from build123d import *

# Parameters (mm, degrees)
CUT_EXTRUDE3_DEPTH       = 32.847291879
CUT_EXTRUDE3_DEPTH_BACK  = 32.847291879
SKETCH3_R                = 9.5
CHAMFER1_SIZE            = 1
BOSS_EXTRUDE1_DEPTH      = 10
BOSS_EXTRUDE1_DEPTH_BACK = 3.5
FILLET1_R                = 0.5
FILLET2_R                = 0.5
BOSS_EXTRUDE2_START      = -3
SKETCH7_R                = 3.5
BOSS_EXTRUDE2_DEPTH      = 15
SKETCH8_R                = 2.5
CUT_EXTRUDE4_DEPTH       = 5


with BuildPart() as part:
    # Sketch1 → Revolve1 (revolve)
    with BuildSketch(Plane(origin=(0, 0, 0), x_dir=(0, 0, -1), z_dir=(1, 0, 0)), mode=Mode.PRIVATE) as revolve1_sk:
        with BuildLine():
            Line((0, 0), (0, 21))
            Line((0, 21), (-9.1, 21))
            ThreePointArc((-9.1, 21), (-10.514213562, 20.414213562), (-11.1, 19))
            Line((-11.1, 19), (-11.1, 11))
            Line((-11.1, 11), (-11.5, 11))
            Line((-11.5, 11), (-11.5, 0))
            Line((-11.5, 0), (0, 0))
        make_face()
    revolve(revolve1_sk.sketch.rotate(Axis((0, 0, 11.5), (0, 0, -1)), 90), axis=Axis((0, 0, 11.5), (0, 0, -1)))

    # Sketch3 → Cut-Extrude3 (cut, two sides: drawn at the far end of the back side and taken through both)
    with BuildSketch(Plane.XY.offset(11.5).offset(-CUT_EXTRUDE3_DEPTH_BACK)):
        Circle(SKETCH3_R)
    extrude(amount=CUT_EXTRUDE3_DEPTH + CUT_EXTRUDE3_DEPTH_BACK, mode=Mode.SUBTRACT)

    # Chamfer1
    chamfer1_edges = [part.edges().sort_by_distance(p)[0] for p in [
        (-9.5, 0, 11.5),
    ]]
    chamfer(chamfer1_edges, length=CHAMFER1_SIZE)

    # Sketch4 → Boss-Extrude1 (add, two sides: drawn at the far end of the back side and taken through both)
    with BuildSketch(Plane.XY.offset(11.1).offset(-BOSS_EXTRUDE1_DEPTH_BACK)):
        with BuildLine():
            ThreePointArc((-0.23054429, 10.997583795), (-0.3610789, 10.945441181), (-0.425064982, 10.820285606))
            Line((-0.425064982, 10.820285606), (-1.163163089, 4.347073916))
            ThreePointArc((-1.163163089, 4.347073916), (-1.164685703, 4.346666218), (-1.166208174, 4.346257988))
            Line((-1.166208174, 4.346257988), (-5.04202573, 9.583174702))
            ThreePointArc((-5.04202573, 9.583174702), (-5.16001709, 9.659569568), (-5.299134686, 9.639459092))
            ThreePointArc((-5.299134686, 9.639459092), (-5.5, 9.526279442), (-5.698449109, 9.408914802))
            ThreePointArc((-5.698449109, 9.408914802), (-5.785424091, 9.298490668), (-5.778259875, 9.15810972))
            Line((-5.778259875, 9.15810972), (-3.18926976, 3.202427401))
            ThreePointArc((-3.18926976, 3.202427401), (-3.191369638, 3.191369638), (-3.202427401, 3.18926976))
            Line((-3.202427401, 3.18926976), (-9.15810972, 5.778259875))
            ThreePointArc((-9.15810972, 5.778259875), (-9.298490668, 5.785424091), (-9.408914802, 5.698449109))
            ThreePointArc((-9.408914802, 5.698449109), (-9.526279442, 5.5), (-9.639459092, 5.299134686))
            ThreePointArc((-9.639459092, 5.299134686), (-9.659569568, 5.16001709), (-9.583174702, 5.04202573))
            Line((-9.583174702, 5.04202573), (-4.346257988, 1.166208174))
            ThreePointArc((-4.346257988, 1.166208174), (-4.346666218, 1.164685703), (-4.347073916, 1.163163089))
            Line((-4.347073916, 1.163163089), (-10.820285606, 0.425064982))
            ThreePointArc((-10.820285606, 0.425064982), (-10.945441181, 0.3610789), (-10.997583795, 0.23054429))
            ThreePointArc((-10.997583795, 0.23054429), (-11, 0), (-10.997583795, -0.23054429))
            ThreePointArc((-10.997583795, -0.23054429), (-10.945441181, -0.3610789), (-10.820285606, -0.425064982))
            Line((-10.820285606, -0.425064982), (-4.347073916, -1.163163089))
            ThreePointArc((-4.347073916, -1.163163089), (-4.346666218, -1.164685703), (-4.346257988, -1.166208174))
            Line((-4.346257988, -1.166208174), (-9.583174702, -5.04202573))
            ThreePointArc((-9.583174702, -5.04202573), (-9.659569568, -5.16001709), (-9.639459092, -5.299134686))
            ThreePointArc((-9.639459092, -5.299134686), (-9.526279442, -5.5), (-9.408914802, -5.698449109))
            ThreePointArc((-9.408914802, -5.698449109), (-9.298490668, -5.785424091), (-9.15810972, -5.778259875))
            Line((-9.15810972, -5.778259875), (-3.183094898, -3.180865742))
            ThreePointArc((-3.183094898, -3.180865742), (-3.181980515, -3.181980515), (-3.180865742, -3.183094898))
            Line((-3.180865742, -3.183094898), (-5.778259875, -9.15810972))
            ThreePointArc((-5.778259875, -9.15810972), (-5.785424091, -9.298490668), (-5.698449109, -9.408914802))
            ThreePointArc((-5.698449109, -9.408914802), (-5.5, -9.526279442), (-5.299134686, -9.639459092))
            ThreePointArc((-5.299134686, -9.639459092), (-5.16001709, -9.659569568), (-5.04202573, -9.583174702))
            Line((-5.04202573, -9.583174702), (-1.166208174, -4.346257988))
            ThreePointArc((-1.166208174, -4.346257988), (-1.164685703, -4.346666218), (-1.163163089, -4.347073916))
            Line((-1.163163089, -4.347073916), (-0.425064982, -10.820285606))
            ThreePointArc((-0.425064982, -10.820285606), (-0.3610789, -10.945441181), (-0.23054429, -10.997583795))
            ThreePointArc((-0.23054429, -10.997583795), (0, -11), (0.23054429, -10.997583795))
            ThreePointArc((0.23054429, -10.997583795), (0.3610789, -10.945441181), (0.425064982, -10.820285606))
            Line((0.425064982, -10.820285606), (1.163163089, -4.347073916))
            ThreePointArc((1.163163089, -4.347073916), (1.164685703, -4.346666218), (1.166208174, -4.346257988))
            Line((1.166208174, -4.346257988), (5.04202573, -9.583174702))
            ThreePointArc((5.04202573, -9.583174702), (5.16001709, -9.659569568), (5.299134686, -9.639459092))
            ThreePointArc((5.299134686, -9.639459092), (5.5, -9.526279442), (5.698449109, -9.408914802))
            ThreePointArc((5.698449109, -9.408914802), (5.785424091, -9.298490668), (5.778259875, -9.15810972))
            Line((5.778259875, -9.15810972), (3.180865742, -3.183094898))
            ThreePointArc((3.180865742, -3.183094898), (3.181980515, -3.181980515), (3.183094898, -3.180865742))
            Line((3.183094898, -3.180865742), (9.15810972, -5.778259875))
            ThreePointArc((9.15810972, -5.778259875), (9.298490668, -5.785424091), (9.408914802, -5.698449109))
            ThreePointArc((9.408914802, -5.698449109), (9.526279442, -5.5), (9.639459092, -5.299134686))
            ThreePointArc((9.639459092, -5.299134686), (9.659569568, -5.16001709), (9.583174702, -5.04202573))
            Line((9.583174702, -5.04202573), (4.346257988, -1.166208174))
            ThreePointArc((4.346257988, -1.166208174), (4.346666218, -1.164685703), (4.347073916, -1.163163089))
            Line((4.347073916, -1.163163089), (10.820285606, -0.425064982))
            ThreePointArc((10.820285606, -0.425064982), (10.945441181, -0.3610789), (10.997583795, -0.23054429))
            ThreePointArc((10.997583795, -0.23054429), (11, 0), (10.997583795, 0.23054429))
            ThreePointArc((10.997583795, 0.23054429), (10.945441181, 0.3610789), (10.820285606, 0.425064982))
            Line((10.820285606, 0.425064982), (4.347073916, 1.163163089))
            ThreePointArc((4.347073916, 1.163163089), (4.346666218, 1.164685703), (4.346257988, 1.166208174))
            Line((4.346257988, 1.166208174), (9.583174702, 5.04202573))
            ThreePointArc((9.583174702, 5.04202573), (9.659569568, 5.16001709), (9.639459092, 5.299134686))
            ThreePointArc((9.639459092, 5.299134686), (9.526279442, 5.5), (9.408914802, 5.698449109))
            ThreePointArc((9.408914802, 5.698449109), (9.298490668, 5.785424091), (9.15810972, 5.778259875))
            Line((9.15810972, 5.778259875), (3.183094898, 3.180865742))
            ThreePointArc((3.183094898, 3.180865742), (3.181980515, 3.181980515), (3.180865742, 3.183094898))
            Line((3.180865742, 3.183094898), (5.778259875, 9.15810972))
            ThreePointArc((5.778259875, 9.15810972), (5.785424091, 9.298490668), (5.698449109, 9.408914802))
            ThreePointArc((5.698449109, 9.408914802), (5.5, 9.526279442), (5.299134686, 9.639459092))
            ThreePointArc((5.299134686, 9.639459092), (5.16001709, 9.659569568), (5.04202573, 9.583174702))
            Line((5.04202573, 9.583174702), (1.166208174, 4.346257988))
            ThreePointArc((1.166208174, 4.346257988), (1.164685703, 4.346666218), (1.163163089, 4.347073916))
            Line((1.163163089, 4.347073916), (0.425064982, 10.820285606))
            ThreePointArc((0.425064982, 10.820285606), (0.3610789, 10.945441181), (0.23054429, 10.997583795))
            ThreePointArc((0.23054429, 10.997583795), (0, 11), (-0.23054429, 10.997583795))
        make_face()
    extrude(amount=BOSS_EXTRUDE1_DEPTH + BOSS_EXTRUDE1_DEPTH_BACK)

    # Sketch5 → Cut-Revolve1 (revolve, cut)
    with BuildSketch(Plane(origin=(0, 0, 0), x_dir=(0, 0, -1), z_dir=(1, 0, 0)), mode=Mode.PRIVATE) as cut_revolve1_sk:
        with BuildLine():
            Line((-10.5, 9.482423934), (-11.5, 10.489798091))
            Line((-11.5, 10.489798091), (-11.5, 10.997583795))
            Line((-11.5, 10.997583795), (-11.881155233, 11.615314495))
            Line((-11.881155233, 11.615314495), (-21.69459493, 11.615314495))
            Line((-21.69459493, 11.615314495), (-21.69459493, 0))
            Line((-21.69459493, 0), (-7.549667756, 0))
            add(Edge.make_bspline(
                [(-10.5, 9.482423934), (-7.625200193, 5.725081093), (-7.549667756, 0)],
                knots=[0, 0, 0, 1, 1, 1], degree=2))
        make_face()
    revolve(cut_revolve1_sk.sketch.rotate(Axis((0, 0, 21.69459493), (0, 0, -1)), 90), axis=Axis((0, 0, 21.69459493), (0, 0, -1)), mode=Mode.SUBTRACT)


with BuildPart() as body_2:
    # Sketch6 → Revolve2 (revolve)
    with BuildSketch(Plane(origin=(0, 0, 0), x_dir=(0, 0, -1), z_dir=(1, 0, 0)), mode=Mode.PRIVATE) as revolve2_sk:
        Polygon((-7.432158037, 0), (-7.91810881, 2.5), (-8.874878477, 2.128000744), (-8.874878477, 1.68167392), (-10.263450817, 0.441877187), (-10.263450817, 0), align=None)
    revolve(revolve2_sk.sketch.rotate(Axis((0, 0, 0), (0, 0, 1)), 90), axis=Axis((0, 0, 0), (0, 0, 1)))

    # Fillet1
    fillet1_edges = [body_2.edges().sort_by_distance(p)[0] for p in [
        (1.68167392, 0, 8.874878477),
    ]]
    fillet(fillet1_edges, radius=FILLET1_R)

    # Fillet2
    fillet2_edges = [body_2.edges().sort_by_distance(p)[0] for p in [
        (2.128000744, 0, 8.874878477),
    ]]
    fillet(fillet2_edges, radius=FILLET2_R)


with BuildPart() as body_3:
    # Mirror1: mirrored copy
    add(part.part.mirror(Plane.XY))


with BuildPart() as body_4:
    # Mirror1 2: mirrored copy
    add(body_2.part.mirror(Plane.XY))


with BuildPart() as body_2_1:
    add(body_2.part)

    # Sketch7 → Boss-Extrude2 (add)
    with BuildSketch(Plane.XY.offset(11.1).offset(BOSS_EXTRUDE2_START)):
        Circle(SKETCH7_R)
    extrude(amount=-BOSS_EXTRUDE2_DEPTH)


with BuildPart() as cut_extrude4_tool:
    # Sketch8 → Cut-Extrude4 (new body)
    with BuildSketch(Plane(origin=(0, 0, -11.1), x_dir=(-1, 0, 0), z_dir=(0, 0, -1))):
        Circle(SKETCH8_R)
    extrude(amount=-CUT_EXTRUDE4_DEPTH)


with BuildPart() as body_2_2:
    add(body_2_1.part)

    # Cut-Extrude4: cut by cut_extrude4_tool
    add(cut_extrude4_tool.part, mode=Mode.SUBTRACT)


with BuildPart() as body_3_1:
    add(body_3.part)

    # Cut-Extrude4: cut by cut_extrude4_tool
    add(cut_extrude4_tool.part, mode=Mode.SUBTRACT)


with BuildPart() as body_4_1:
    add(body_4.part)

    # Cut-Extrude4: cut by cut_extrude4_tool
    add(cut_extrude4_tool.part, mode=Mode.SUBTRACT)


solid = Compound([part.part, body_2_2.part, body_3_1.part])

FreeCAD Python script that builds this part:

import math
import FreeCAD as App
import Part
import Sketcher
Q = App.Units.Quantity


def edges_at(feature, points):
    """Names of the edges that pass closest to the given points."""
    edges = feature.Shape.Edges
    near = lambda p: min(range(len(edges)), key=lambda i: edges[i].distToShape(Part.Vertex(*p))[0])
    return sorted({f"Edge{near(p) + 1}" for p in points})


def add_polygon(sketch, points):
    """Adds a closed chain of lines whose ends are joined by coincident constraints."""
    first, n = sketch.GeometryCount, len(points)
    for a, b in zip(points, points[1:] + points[:1]):
        sketch.addGeometry(Part.LineSegment(App.Vector(*a, 0), App.Vector(*b, 0)), False)
    for i in range(n):
        sketch.addConstraint(Sketcher.Constraint("Coincident", first + i, 2, first + (i + 1) % n, 1))

doc = App.newDocument("Part")
body = doc.addObject("PartDesign::Body", "Body")

sketch1 = body.newObject("Sketcher::SketchObject", "Sketch")
sketch1.AttachmentSupport = (doc.getObject("YZ_Plane"), [""])
sketch1.MapMode = "FlatFace"
sketch1.addGeometry([
    Part.LineSegment(App.Vector(0, 0, 0), App.Vector(21, 0, 0)),
    Part.LineSegment(App.Vector(21, 0, 0), App.Vector(21, 9.1, 0)),
    Part.ArcOfCircle(Part.Circle(App.Vector(19, 9.1, 0), App.Vector(0, 0, 1), 2), math.radians(0), math.radians(90)),
    Part.LineSegment(App.Vector(19, 11.1, 0), App.Vector(11, 11.1, 0)),
    Part.LineSegment(App.Vector(11, 11.1, 0), App.Vector(11, 11.5, 0)),
    Part.LineSegment(App.Vector(11, 11.5, 0), App.Vector(0, 11.5, 0)),
    Part.LineSegment(App.Vector(0, 11.5, 0), App.Vector(0, 0, 0)),
], False)
sketch1.addConstraint([
    Sketcher.Constraint("Coincident", 0, 2, 1, 1),
    Sketcher.Constraint("Tangent", 1, 2, 2, 1),
    Sketcher.Constraint("Tangent", 2, 2, 3, 1),
    Sketcher.Constraint("Coincident", 3, 2, 4, 1),
    Sketcher.Constraint("Coincident", 4, 2, 5, 1),
    Sketcher.Constraint("Coincident", 5, 2, 6, 1),
    Sketcher.Constraint("Coincident", 6, 2, 0, 1),
    Sketcher.Constraint("Horizontal", 0),
    Sketcher.Constraint("Vertical", 1),
    Sketcher.Constraint("Horizontal", 3),
    Sketcher.Constraint("Vertical", 4),
    Sketcher.Constraint("Horizontal", 5),
    Sketcher.Constraint("Vertical", 6),
    Sketcher.Constraint("Coincident", 6, 2, -1, 1),
    Sketcher.Constraint("Radius", 2, Q("2 mm")),
    Sketcher.Constraint("DistanceX", 0, 1, 0, 2, Q("21 mm")),
    Sketcher.Constraint("DistanceX", 3, 2, 3, 1, Q("8 mm")),
    Sketcher.Constraint("DistanceY", 1, 1, 1, 2, Q("9.1 mm")),
    Sketcher.Constraint("DistanceY", 4, 1, 4, 2, Q("0.4 mm")),
])
revolution = body.newObject("PartDesign::Revolution", "Revolution")
revolution.Profile = sketch1
revolution.ReferenceAxis = (sketch1, ["V_Axis"])
revolution.Angle = 360

sketch2 = body.newObject("Sketcher::SketchObject", "Sketch001")
sketch2.AttachmentSupport = (doc.getObject("XY_Plane"), [""])
sketch2.MapMode = "FlatFace"
sketch2.AttachmentOffset = App.Placement(App.Vector(0, 0, 11.5), App.Rotation())
sketch2.addGeometry(Part.Circle(App.Vector(0, 0, 0), App.Vector(0, 0, 1), 9.5), False)
sketch2.addConstraint([
    Sketcher.Constraint("Coincident", 0, 3, -1, 1),
    Sketcher.Constraint("Diameter", 0, Q("19 mm")),
])
pocket1 = body.newObject("PartDesign::Pocket", "Pocket")
pocket1.Profile = sketch2
pocket1.Type = "ThroughAll"
pocket1.Midplane = True
doc.recompute()

chamfer = body.newObject("PartDesign::Chamfer", "Chamfer")
chamfer.Base = (pocket1, edges_at(pocket1, [(-9.5, 0, 11.5)]))
chamfer.Size = 1

sketch3 = body.newObject("Sketcher::SketchObject", "Sketch002")
sketch3.AttachmentSupport = (doc.getObject("XY_Plane"), [""])
sketch3.MapMode = "FlatFace"
sketch3.AttachmentOffset = App.Placement(App.Vector(0, 0, 11.1), App.Rotation())
sketch3.addGeometry([
    Part.ArcOfCircle(Part.Circle(App.Vector(-0.226353, 10.797628, 0), App.Vector(0, 0, 1), 0.2), math.radians(91.200926), math.radians(173.49503)),
    Part.LineSegment(App.Vector(-0.425065, 10.820286, 0), App.Vector(-1.163163, 4.347074, 0)),
    Part.ArcOfCircle(Part.Circle(App.Vector(0.002628, -0.009808, 0), App.Vector(0, 0, 1), 4.510154), math.radians(104.979975), math.radians(105.020023)),
    Part.LineSegment(App.Vector(-1.166208, 4.346258, 0), App.Vector(-5.042026, 9.583175, 0)),
    Part.ArcOfCircle(Part.Circle(App.Vector(-5.202787, 9.464196, 0), App.Vector(0, 0, 1), 0.2), math.radians(36.504971), math.radians(118.799074)),
    Part.ArcOfCircle(Part.Circle(App.Vector(0, 0.000001, 0), App.Vector(0, 0, 1), 10.999999), math.radians(118.799074), math.radians(121.200926)),
    Part.ArcOfCircle(Part.Circle(App.Vector(-5.594841, 9.237844, 0), App.Vector(0, 0, 1), 0.2), math.radians(121.200925), math.radians(203.495031)),
    Part.LineSegment(App.Vector(-5.77826, 9.15811, 0), App.Vector(-3.18927, 3.202427, 0)),
    Part.ArcOfCircle(Part.Circle(App.Vector(-3.198441, 3.198441, 0), App.Vector(0, 0, 1), 0.01), math.radians(-113.495038), math.radians(23.495038)),
    Part.LineSegment(App.Vector(-3.202427, 3.18927, 0), App.Vector(-9.15811, 5.77826, 0)),
    Part.ArcOfCircle(Part.Circle(App.Vector(-9.237844, 5.594841, 0), App.Vector(0, 0, 1), 0.2), math.radians(66.504969), math.radians(148.799075)),
    Part.ArcOfCircle(Part.Circle(App.Vector(-0.000001, 0, 0), App.Vector(0, 0, 1), 10.999999), math.radians(148.799074), math.radians(151.200926)),
    Part.ArcOfCircle(Part.Circle(App.Vector(-9.464196, 5.202787, 0), App.Vector(0, 0, 1), 0.2), math.radians(151.200926), math.radians(233.495029)),
    Part.LineSegment(App.Vector(-9.583175, 5.042026, 0), App.Vector(-4.346258, 1.166208, 0)),
    Part.ArcOfCircle(Part.Circle(App.Vector(0.009808, -0.002628, 0), App.Vector(0, 0, 1), 4.510154), math.radians(164.979977), math.radians(165.020025)),
    Part.LineSegment(App.Vector(-4.347074, 1.163163, 0), App.Vector(-10.820286, 0.425065, 0)),
    Part.ArcOfCircle(Part.Circle(App.Vector(-10.797628, 0.226353, 0), App.Vector(0, 0, 1), 0.2), math.radians(96.50497), math.radians(178.799074)),
    Part.ArcOfCircle(Part.Circle(App.Vector(0, 0, 0), App.Vector(0, 0, 1), 11), math.radians(178.799074), math.radians(181.200926)),
    Part.ArcOfCircle(Part.Circle(App.Vector(-10.797628, -0.226353, 0), App.Vector(0, 0, 1), 0.2), math.radians(-178.799074), math.radians(-96.50497)),
    Part.LineSegment(App.Vector(-10.820286, -0.425065, 0), App.Vector(-4.347074, -1.163163, 0)),
    Part.ArcOfCircle(Part.Circle(App.Vector(0.009808, 0.002628, 0), App.Vector(0, 0, 1), 4.510154), math.radians(-165.020025), math.radians(-164.979977)),
    Part.LineSegment(App.Vector(-4.346258, -1.166208, 0), App.Vector(-9.583175, -5.042026, 0)),
    Part.ArcOfCircle(Part.Circle(App.Vector(-9.464196, -5.202787, 0), App.Vector(0, 0, 1), 0.2), math.radians(126.504971), math.radians(208.799074)),
    Part.ArcOfCircle(Part.Circle(App.Vector(-0.000001, 0, 0), App.Vector(0, 0, 1), 10.999999), math.radians(-151.200926), math.radians(-148.799074)),
    Part.ArcOfCircle(Part.Circle(App.Vector(-9.237844, -5.594841, 0), App.Vector(0, 0, 1), 0.2), math.radians(-148.799075), math.radians(-66.504969)),
    Part.LineSegment(App.Vector(-9.15811, -5.77826, 0), App.Vector(-3.183095, -3.180866, 0)),
    Part.ArcOfCircle(Part.Circle(App.Vector(0.003363, 0.003363, 0), App.Vector(0, 0, 1), 4.504757), math.radians(-135.020048), math.radians(-134.979952)),
    Part.LineSegment(App.Vector(-3.180866, -3.183095, 0), App.Vector(-5.77826, -9.15811, 0)),
    Part.ArcOfCircle(Part.Circle(App.Vector(-5.594841, -9.237844, 0), App.Vector(0, 0, 1), 0.2), math.radians(156.504969), math.radians(238.799075)),
    Part.ArcOfCircle(Part.Circle(App.Vector(0, -0.000001, 0), App.Vector(0, 0, 1), 10.999999), math.radians(-121.200926), math.radians(-118.799074)),
    Part.ArcOfCircle(Part.Circle(App.Vector(-5.202787, -9.464196, 0), App.Vector(0, 0, 1), 0.2), math.radians(-118.799074), math.radians(-36.504971)),
    Part.LineSegment(App.Vector(-5.042026, -9.583175, 0), App.Vector(-1.166208, -4.346258, 0)),
    Part.ArcOfCircle(Part.Circle(App.Vector(0.002628, 0.009808, 0), App.Vector(0, 0, 1), 4.510154), math.radians(-105.020023), math.radians(-104.979975)),
    Part.LineSegment(App.Vector(-1.163163, -4.347074, 0), App.Vector(-0.425065, -10.820286, 0)),
    Part.ArcOfCircle(Part.Circle(App.Vector(-0.226353, -10.797628, 0), App.Vector(0, 0, 1), 0.2), math.radians(-173.49503), math.radians(-91.200926)),
    Part.ArcOfCircle(Part.Circle(App.Vector(0, 0, 0), App.Vector(0, 0, 1), 11), math.radians(-91.200926), math.radians(-88.799074)),
    Part.ArcOfCircle(Part.Circle(App.Vector(0.226353, -10.797628, 0), App.Vector(0, 0, 1), 0.2), math.radians(-88.799074), math.radians(-6.50497)),
    Part.LineSegment(App.Vector(0.425065, -10.820286, 0), App.Vector(1.163163, -4.347074, 0)),
    Part.ArcOfCircle(Part.Circle(App.Vector(-0.002628, 0.009808, 0), App.Vector(0, 0, 1), 4.510154), math.radians(-75.020025), math.radians(-74.979977)),
    Part.LineSegment(App.Vector(1.166208, -4.346258, 0), App.Vector(5.042026, -9.583175, 0)),
    Part.ArcOfCircle(Part.Circle(App.Vector(5.202787, -9.464196, 0), App.Vector(0, 0, 1), 0.2), math.radians(-143.495029), math.radians(-61.200926)),
    Part.ArcOfCircle(Part.Circle(App.Vector(0, -0.000001, 0), App.Vector(0, 0, 1), 10.999999), math.radians(-61.200926), math.radians(-58.799074)),
    Part.ArcOfCircle(Part.Circle(App.Vector(5.594841, -9.237844, 0), App.Vector(0, 0, 1), 0.2), math.radians(-58.799075), math.radians(23.495031)),
    Part.LineSegment(App.Vector(5.77826, -9.15811, 0), App.Vector(3.180866, -3.183095, 0)),
    Part.ArcOfCircle(Part.Circle(App.Vector(-0.003363, 0.003363, 0), App.Vector(0, 0, 1), 4.504757), math.radians(-45.020048), math.radians(-44.979952)),
    Part.LineSegment(App.Vector(3.183095, -3.180866, 0), App.Vector(9.15811, -5.77826, 0)),
    Part.ArcOfCircle(Part.Circle(App.Vector(9.237844, -5.594841, 0), App.Vector(0, 0, 1), 0.2), math.radians(-113.495031), math.radians(-31.200925)),
    Part.ArcOfCircle(Part.Circle(App.Vector(0.000001, 0, 0), App.Vector(0, 0, 1), 10.999999), math.radians(-31.200926), math.radians(-28.799074)),
    Part.ArcOfCircle(Part.Circle(App.Vector(9.464196, -5.202787, 0), App.Vector(0, 0, 1), 0.2), math.radians(-28.799074), math.radians(53.495029)),
    Part.LineSegment(App.Vector(9.583175, -5.042026, 0), App.Vector(4.346258, -1.166208, 0)),
    Part.ArcOfCircle(Part.Circle(App.Vector(-0.009808, 0.002628, 0), App.Vector(0, 0, 1), 4.510154), math.radians(-15.020023), math.radians(-14.979975)),
    Part.LineSegment(App.Vector(4.347074, -1.163163, 0), App.Vector(10.820286, -0.425065, 0)),
    Part.ArcOfCircle(Part.Circle(App.Vector(10.797628, -0.226353, 0), App.Vector(0, 0, 1), 0.2), math.radians(-83.49503), math.radians(-1.200926)),
    Part.ArcOfCircle(Part.Circle(App.Vector(0, 0, 0), App.Vector(0, 0, 1), 11), math.radians(-1.200926), math.radians(1.200926)),
    Part.ArcOfCircle(Part.Circle(App.Vector(10.797628, 0.226353, 0), App.Vector(0, 0, 1), 0.2), math.radians(1.200926), math.radians(83.49503)),
    Part.LineSegment(App.Vector(10.820286, 0.425065, 0), App.Vector(4.347074, 1.163163, 0)),
    Part.ArcOfCircle(Part.Circle(App.Vector(-0.009808, -0.002628, 0), App.Vector(0, 0, 1), 4.510154), math.radians(14.979975), math.radians(15.020023)),
    Part.LineSegment(App.Vector(4.346258, 1.166208, 0), App.Vector(9.583175, 5.042026, 0)),
    Part.ArcOfCircle(Part.Circle(App.Vector(9.464196, 5.202787, 0), App.Vector(0, 0, 1), 0.2), math.radians(-53.495029), math.radians(28.799074)),
    Part.ArcOfCircle(Part.Circle(App.Vector(0.000001, 0, 0), App.Vector(0, 0, 1), 10.999999), math.radians(28.799074), math.radians(31.200926)),
    Part.ArcOfCircle(Part.Circle(App.Vector(9.237844, 5.594841, 0), App.Vector(0, 0, 1), 0.2), math.radians(31.200925), math.radians(113.495031)),
    Part.LineSegment(App.Vector(9.15811, 5.77826, 0), App.Vector(3.183095, 3.180866, 0)),
    Part.ArcOfCircle(Part.Circle(App.Vector(-0.003363, -0.003363, 0), App.Vector(0, 0, 1), 4.504757), math.radians(44.979952), math.radians(45.020048)),
    Part.LineSegment(App.Vector(3.180866, 3.183095, 0), App.Vector(5.77826, 9.15811, 0)),
    Part.ArcOfCircle(Part.Circle(App.Vector(5.594841, 9.237844, 0), App.Vector(0, 0, 1), 0.2), math.radians(-23.495031), math.radians(58.799075)),
    Part.ArcOfCircle(Part.Circle(App.Vector(0, 0.000001, 0), App.Vector(0, 0, 1), 10.999999), math.radians(58.799074), math.radians(61.200926)),
    Part.ArcOfCircle(Part.Circle(App.Vector(5.202787, 9.464196, 0), App.Vector(0, 0, 1), 0.2), math.radians(61.200926), math.radians(143.495029)),
    Part.LineSegment(App.Vector(5.042026, 9.583175, 0), App.Vector(1.166208, 4.346258, 0)),
    Part.ArcOfCircle(Part.Circle(App.Vector(-0.002628, -0.009808, 0), App.Vector(0, 0, 1), 4.510154), math.radians(74.979977), math.radians(75.020025)),
    Part.LineSegment(App.Vector(1.163163, 4.347074, 0), App.Vector(0.425065, 10.820286, 0)),
    Part.ArcOfCircle(Part.Circle(App.Vector(0.226353, 10.797628, 0), App.Vector(0, 0, 1), 0.2), math.radians(6.50497), math.radians(88.799074)),
    Part.ArcOfCircle(Part.Circle(App.Vector(0, 0, 0), App.Vector(0, 0, 1), 11), math.radians(88.799074), math.radians(91.200926)),
], False)
sketch3.addConstraint([
    Sketcher.Constraint("Tangent", 0, 2, 1, 1),
    Sketcher.Constraint("Coincident", 1, 2, 2, 1),
    Sketcher.Constraint("Coincident", 2, 2, 3, 1),
    Sketcher.Constraint("Tangent", 3, 2, 4, 1),
    Sketcher.Constraint("Tangent", 4, 2, 5, 1),
    Sketcher.Constraint("Tangent", 5, 2, 6, 1),
    Sketcher.Constraint("Tangent", 6, 2, 7, 1),
    Sketcher.Constraint("Tangent", 7, 2, 8, 2),
    Sketcher.Constraint("Tangent", 8, 1, 9, 1),
    Sketcher.Constraint("Tangent", 9, 2, 10, 1),
    Sketcher.Constraint("Tangent", 10, 2, 11, 1),
    Sketcher.Constraint("Tangent", 11, 2, 12, 1),
    Sketcher.Constraint("Tangent", 12, 2, 13, 1),
    Sketcher.Constraint("Coincident", 13, 2, 14, 1),
    Sketcher.Constraint("Coincident", 14, 2, 15, 1),
    Sketcher.Constraint("Tangent", 15, 2, 16, 1),
    Sketcher.Constraint("Tangent", 16, 2, 17, 1),
    Sketcher.Constraint("Tangent", 17, 2, 18, 1),
    Sketcher.Constraint("Tangent", 18, 2, 19, 1),
    Sketcher.Constraint("Coincident", 19, 2, 20, 1),
    Sketcher.Constraint("Coincident", 20, 2, 21, 1),
    Sketcher.Constraint("Tangent", 21, 2, 22, 1),
    Sketcher.Constraint("Tangent", 22, 2, 23, 1),
    Sketcher.Constraint("Tangent", 23, 2, 24, 1),
    Sketcher.Constraint("Tangent", 24, 2, 25, 1),
    Sketcher.Constraint("Coincident", 25, 2, 26, 1),
    Sketcher.Constraint("Coincident", 26, 2, 27, 1),
    Sketcher.Constraint("Tangent", 27, 2, 28, 1),
    Sketcher.Constraint("Tangent", 28, 2, 29, 1),
    Sketcher.Constraint("Tangent", 29, 2, 30, 1),
    Sketcher.Constraint("Tangent", 30, 2, 31, 1),
    Sketcher.Constraint("Coincident", 31, 2, 32, 1),
    Sketcher.Constraint("Coincident", 32, 2, 33, 1),
    Sketcher.Constraint("Tangent", 33, 2, 34, 1),
    Sketcher.Constraint("Tangent", 34, 2, 35, 1),
    Sketcher.Constraint("Tangent", 35, 2, 36, 1),
    Sketcher.Constraint("Tangent", 36, 2, 37, 1),
    Sketcher.Constraint("Coincident", 37, 2, 38, 1),
    Sketcher.Constraint("Coincident", 38, 2, 39, 1),
    Sketcher.Constraint("Tangent", 39, 2, 40, 1),
    Sketcher.Constraint("Tangent", 40, 2, 41, 1),
    Sketcher.Constraint("Tangent", 41, 2, 42, 1),
    Sketcher.Constraint("Tangent", 42, 2, 43, 1),
    Sketcher.Constraint("Coincident", 43, 2, 44, 1),
    Sketcher.Constraint("Coincident", 44, 2, 45, 1),
    Sketcher.Constraint("Tangent", 45, 2, 46, 1),
    Sketcher.Constraint("Tangent", 46, 2, 47, 1),
    Sketcher.Constraint("Tangent", 47, 2, 48, 1),
    Sketcher.Constraint("Tangent", 48, 2, 49, 1),
    Sketcher.Constraint("Coincident", 49, 2, 50, 1),
    Sketcher.Constraint("Coincident", 50, 2, 51, 1),
    Sketcher.Constraint("Tangent", 51, 2, 52, 1),
    Sketcher.Constraint("Tangent", 52, 2, 53, 1),
    Sketcher.Constraint("Tangent", 53, 2, 54, 1),
    Sketcher.Constraint("Tangent", 54, 2, 55, 1),
    Sketcher.Constraint("Coincident", 55, 2, 56, 1),
    Sketcher.Constraint("Coincident", 56, 2, 57, 1),
    Sketcher.Constraint("Tangent", 57, 2, 58, 1),
    Sketcher.Constraint("Tangent", 58, 2, 59, 1),
    Sketcher.Constraint("Tangent", 59, 2, 60, 1),
    Sketcher.Constraint("Tangent", 60, 2, 61, 1),
    Sketcher.Constraint("Coincident", 61, 2, 62, 1),
    Sketcher.Constraint("Coincident", 62, 2, 63, 1),
    Sketcher.Constraint("Tangent", 63, 2, 64, 1),
    Sketcher.Constraint("Tangent", 64, 2, 65, 1),
    Sketcher.Constraint("Tangent", 65, 2, 66, 1),
    Sketcher.Constraint("Tangent", 66, 2, 67, 1),
    Sketcher.Constraint("Coincident", 67, 2, 68, 1),
    Sketcher.Constraint("Coincident", 68, 2, 69, 1),
    Sketcher.Constraint("Tangent", 69, 2, 70, 1),
    Sketcher.Constraint("Tangent", 70, 2, 71, 1),
    Sketcher.Constraint("Tangent", 71, 2, 0, 1),
    Sketcher.Constraint("Coincident", 5, 3, -1, 1),
    Sketcher.Constraint("Coincident", 11, 3, -1, 1),
    Sketcher.Constraint("Coincident", 17, 3, -1, 1),
    Sketcher.Constraint("Coincident", 23, 3, -1, 1),
    Sketcher.Constraint("Coincident", 29, 3, -1, 1),
    Sketcher.Constraint("Coincident", 35, 3, -1, 1),
    Sketcher.Constraint("Coincident", 41, 3, -1, 1),
    Sketcher.Constraint("Coincident", 47, 3, -1, 1),
    Sketcher.Constraint("Coincident", 53, 3, -1, 1),
    Sketcher.Constraint("Coincident", 59, 3, -1, 1),
    Sketcher.Constraint("Coincident", 65, 3, -1, 1),
    Sketcher.Constraint("Coincident", 71, 3, -1, 1),
    Sketcher.Constraint("Equal", 0, 4),
    Sketcher.Constraint("Equal", 4, 6),
    Sketcher.Constraint("Equal", 6, 10),
    Sketcher.Constraint("Equal", 5, 11),
    Sketcher.Constraint("Equal", 10, 12),
    Sketcher.Constraint("Equal", 2, 14),
    Sketcher.Constraint("Equal", 12, 16),
    Sketcher.Constraint("Equal", 11, 17),
    Sketcher.Constraint("Equal", 16, 18),
    Sketcher.Constraint("Equal", 14, 20),
    Sketcher.Constraint("Equal", 18, 22),
    Sketcher.Constraint("Equal", 17, 23),
    Sketcher.Constraint("Equal", 22, 24),
    Sketcher.Constraint("Equal", 24, 28),
    Sketcher.Constraint("Equal", 23, 29),
    Sketcher.Constraint("Equal", 28, 30),
    Sketcher.Constraint("Equal", 20, 32),
    Sketcher.Constraint("Equal", 30, 34),
    Sketcher.Constraint("Equal", 29, 35),
    Sketcher.Constraint("Equal", 34, 36),
    Sketcher.Constraint("Equal", 32, 38),
    Sketcher.Constraint("Equal", 36, 40),
    Sketcher.Constraint("Equal", 35, 41),
    Sketcher.Constraint("Equal", 40, 42),
    Sketcher.Constraint("Equal", 26, 44),
    Sketcher.Constraint("Equal", 42, 46),
    Sketcher.Constraint("Equal", 41, 47),
    Sketcher.Constraint("Equal", 46, 48),
    Sketcher.Constraint("Equal", 38, 50),
    Sketcher.Constraint("Equal", 48, 52),
    Sketcher.Constraint("Equal", 47, 53),
    Sketcher.Constraint("Equal", 52, 54),
    Sketcher.Constraint("Equal", 50, 56),
    Sketcher.Constraint("Equal", 54, 58),
    Sketcher.Constraint("Equal", 53, 59),
    Sketcher.Constraint("Equal", 58, 60),
    Sketcher.Constraint("Equal", 44, 62),
    Sketcher.Constraint("Equal", 60, 64),
    Sketcher.Constraint("Equal", 59, 65),
    Sketcher.Constraint("Equal", 64, 66),
    Sketcher.Constraint("Equal", 56, 68),
    Sketcher.Constraint("Equal", 66, 70),
    Sketcher.Constraint("Equal", 65, 71),
    Sketcher.Constraint("Symmetric", 2, 3, 38, 3, -1, 1),
    Sketcher.Constraint("Symmetric", 14, 3, 50, 3, -1, 1),
    Sketcher.Constraint("Symmetric", 20, 3, 56, 3, -1, 1),
    Sketcher.Constraint("Symmetric", 26, 3, 62, 3, -1, 1),
    Sketcher.Constraint("Symmetric", 32, 3, 68, 3, -1, 1),
    Sketcher.Constraint("Symmetric", 0, 2, 36, 2, -1, 1),
    Sketcher.Constraint("Symmetric", 3, 2, 39, 2, -1, 1),
    Sketcher.Constraint("Symmetric", 6, 2, 42, 2, -1, 1),
    Sketcher.Constraint("Symmetric", 9, 2, 45, 2, -1, 1),
    Sketcher.Constraint("Symmetric", 12, 2, 48, 2, -1, 1),
    Sketcher.Constraint("Symmetric", 15, 2, 51, 2, -1, 1),
    Sketcher.Constraint("Symmetric", 18, 2, 54, 2, -1, 1),
    Sketcher.Constraint("Symmetric", 21, 2, 57, 2, -1, 1),
    Sketcher.Constraint("Symmetric", 24, 2, 60, 2, -1, 1),
    Sketcher.Constraint("Symmetric", 27, 2, 63, 2, -1, 1),
    Sketcher.Constraint("Symmetric", 30, 2, 66, 2, -1, 1),
    Sketcher.Constraint("Symmetric", 33, 2, 69, 2, -1, 1),
    Sketcher.Constraint("Symmetric", 32, 3, 38, 3, -2),
    Sketcher.Constraint("Symmetric", 26, 3, 44, 3, -2),
    Sketcher.Constraint("Symmetric", 20, 3, 50, 3, -2),
    Sketcher.Constraint("Symmetric", 33, 2, 36, 2, -2),
    Sketcher.Constraint("Symmetric", 30, 2, 39, 2, -2),
    Sketcher.Constraint("Symmetric", 27, 2, 42, 2, -2),
    Sketcher.Constraint("Symmetric", 24, 2, 45, 2, -2),
    Sketcher.Constraint("Symmetric", 21, 2, 48, 2, -2),
    Sketcher.Constraint("Symmetric", 18, 2, 51, 2, -2),
    Sketcher.Constraint("Perpendicular", 1, 19),
    Sketcher.Constraint("Perpendicular", 3, 21),
    Sketcher.Constraint("Perpendicular", 7, 25),
    Sketcher.Constraint("Equal", 1, 3),
    Sketcher.Constraint("Equal", 7, 9),
    Sketcher.Constraint("Equal", 3, 13),
    Sketcher.Constraint("Equal", 13, 15),
    Sketcher.Constraint("Equal", 21, 25),
    Sketcher.Constraint("Radius", 5, Q("10.999999 mm")),
    Sketcher.Constraint("Radius", 0, Q("0.2 mm")),
    Sketcher.Constraint("Radius", 8, Q("0.01 mm")),
    Sketcher.Constraint("Radius", 2, Q("4.510154 mm")),
    Sketcher.Constraint("Radius", 26, Q("4.504757 mm")),
    Sketcher.Constraint("DistanceX", -1, 1, 2, 3, Q("0.002628 mm")),
    Sketcher.Constraint("DistanceY", 2, 3, -1, 1, Q("0.009808 mm")),
    Sketcher.Constraint("DistanceX", 6, 3, -1, 1, Q("5.594841 mm")),
    Sketcher.Constraint("DistanceX", 8, 3, -1, 1, Q("3.198441 mm")),
    Sketcher.Constraint("DistanceX", -1, 1, 14, 3, Q("0.009808 mm")),
    Sketcher.Constraint("DistanceY", 14, 3, -1, 1, Q("0.002628 mm")),
    Sketcher.Constraint("DistanceX", 2, 2, -1, 1, Q("1.166208 mm")),
    Sketcher.Constraint("DistanceY", -1, 1, 4, 2, Q("9.639459 mm")),
    Sketcher.Constraint("DistanceX", 0, 3, -1, 1, Q("0.226353 mm")),
    Sketcher.Constraint("DistanceX", -1, 1, 26, 3, Q("0.003363 mm")),
])
pad1 = body.newObject("PartDesign::Pad", "Pad")
pad1.Profile = sketch3
pad1.Type = "TwoLengths"
pad1.Length = 10
pad1.Length2 = 3.5

sketch4 = body.newObject("Sketcher::SketchObject", "Sketch003")
sketch4.AttachmentSupport = (doc.getObject("YZ_Plane"), [""])
sketch4.MapMode = "FlatFace"
sketch4.addGeometry([
    Part.LineSegment(App.Vector(9.482424, 10.5, 0), App.Vector(10.489798, 11.5, 0)),
    Part.LineSegment(App.Vector(10.489798, 11.5, 0), App.Vector(10.997584, 11.5, 0)),
    Part.LineSegment(App.Vector(10.997584, 11.5, 0), App.Vector(11.615314, 11.881155, 0)),
    Part.LineSegment(App.Vector(11.615314, 11.881155, 0), App.Vector(11.615314, 21.694595, 0)),
    Part.LineSegment(App.Vector(11.615314, 21.694595, 0), App.Vector(0, 21.694595, 0)),
    Part.LineSegment(App.Vector(0, 21.694595, 0), App.Vector(0, 7.549668, 0)),
    Part.BSplineCurve([App.Vector(9.482424, 10.5, 0), App.Vector(5.725081, 7.6252, 0), App.Vector(0, 7.549668, 0)], [3, 3], [0, 1], False, 2, [1, 1, 1], False),
], False)
sketch4.addConstraint([
    Sketcher.Constraint("Block", 6),
    Sketcher.Constraint("Coincident", 0, 2, 1, 1),
    Sketcher.Constraint("Coincident", 1, 2, 2, 1),
    Sketcher.Constraint("Coincident", 2, 2, 3, 1),
    Sketcher.Constraint("Coincident", 3, 2, 4, 1),
    Sketcher.Constraint("Coincident", 4, 2, 5, 1),
    Sketcher.Constraint("Coincident", 5, 2, 6, 2),
    Sketcher.Constraint("Coincident", 6, 1, 0, 1),
    Sketcher.Constraint("Horizontal", 1),
    Sketcher.Constraint("Vertical", 3),
    Sketcher.Constraint("Horizontal", 4),
    Sketcher.Constraint("Vertical", 5),
    Sketcher.Constraint("DistanceY", -1, 1, 0, 2, Q("11.5 mm")),
    Sketcher.Constraint("DistanceY", 3, 1, 3, 2, Q("9.81344 mm")),
    Sketcher.Constraint("DistanceX", -1, 1, 0, 2, Q("10.489798 mm")),
    Sketcher.Constraint("Distance", 2, Q("0.725858 mm")),
    Sketcher.Constraint("DistanceX", 1, 1, 1, 2, Q("0.507786 mm")),
    Sketcher.Constraint("DistanceX", 4, 2, 4, 1, Q("11.615314 mm")),
])
groove = body.newObject("PartDesign::Groove", "Groove")
groove.Profile = sketch4
groove.ReferenceAxis = (sketch4, ["V_Axis"])
groove.Angle = 360
body2 = doc.addObject("PartDesign::Body", "Body001")

sketch5 = body2.newObject("Sketcher::SketchObject", "Sketch004")
sketch5.AttachmentSupport = (doc.getObject("YZ_Plane001"), [""])
sketch5.MapMode = "FlatFace"
add_polygon(sketch5, [(0, 7.432158), (2.5, 7.918109), (2.128001, 8.874878), (1.681674, 8.874878), (0.441877, 10.263451), (0, 10.263451)])
sketch5.addConstraint([
    Sketcher.Constraint("Horizontal", 2),
    Sketcher.Constraint("Horizontal", 4),
    Sketcher.Constraint("Vertical", 5),
    Sketcher.Constraint("PointOnObject", 4, 2, -2),
    Sketcher.Constraint("Angle", 0, Q("11 deg")),
    Sketcher.Constraint("DistanceX", -1, 1, 0, 2, Q("2.5 mm")),
    Sketcher.Constraint("DistanceX", -1, 1, 1, 2, Q("2.128001 mm")),
    Sketcher.Constraint("DistanceX", 2, 2, 2, 1, Q("0.446327 mm")),
    Sketcher.Constraint("DistanceX", 4, 2, 4, 1, Q("0.441877 mm")),
    Sketcher.Constraint("DistanceY", 5, 2, 5, 1, Q("2.831293 mm")),
    Sketcher.Constraint("DistanceY", -1, 1, 0, 2, Q("7.918109 mm")),
    Sketcher.Constraint("DistanceY", -1, 1, 1, 2, Q("8.874878 mm")),
])
revolution2 = body2.newObject("PartDesign::Revolution", "Revolution001")
revolution2.Profile = sketch5
revolution2.ReferenceAxis = (sketch5, ["V_Axis"])
revolution2.Angle = 360
doc.recompute()

fillet = body2.newObject("PartDesign::Fillet", "Fillet")
fillet.Base = (revolution2, edges_at(revolution2, [(1.682, 0, 8.875)]))
fillet.Radius = 0.5
doc.recompute()

fillet2 = body2.newObject("PartDesign::Fillet", "Fillet001")
fillet2.Base = (fillet, edges_at(fillet, [(2.128, 0, 8.875)]))
fillet2.Radius = 0.5
body3 = doc.addObject("PartDesign::Body", "Body002")
doc.recompute()

mirroring = doc.addObject("Part::Mirroring", "Mirroring")
mirroring.Source = body
mirroring.Base = App.Vector(0, 0, 0)
mirroring.Normal = App.Vector(0, 0, 1)
body3.BaseFeature = mirroring
doc.recompute()
body4 = doc.addObject("PartDesign::Body", "Body003")
doc.recompute()

mirroring2 = doc.addObject("Part::Mirroring", "Mirroring001")
mirroring2.Source = body2
mirroring2.Base = App.Vector(0, 0, 0)
mirroring2.Normal = App.Vector(0, 0, 1)
body4.BaseFeature = mirroring2
doc.recompute()

sketch6 = body2.newObject("Sketcher::SketchObject", "Sketch005")
sketch6.AttachmentSupport = (doc.getObject("XY_Plane001"), [""])
sketch6.MapMode = "FlatFace"
sketch6.AttachmentOffset = App.Placement(App.Vector(0, 0, 8.1), App.Rotation())
sketch6.addGeometry(Part.Circle(App.Vector(0, 0, 0), App.Vector(0, 0, 1), 3.5), False)
sketch6.addConstraint([
    Sketcher.Constraint("Coincident", 0, 3, -1, 1),
    Sketcher.Constraint("Diameter", 0, Q("7 mm")),
])
pad2 = body2.newObject("PartDesign::Pad", "Pad001")
pad2.Profile = sketch6
pad2.Length = 15
pad2.Reversed = True
body5 = doc.addObject("PartDesign::Body", "Body004")

sketch7 = body5.newObject("Sketcher::SketchObject", "Sketch006")
sketch7.AttachmentSupport = (doc.getObject("XY_Plane004"), [""])
sketch7.MapMode = "FlatFace"
sketch7.AttachmentOffset = App.Placement(App.Vector(0, 0, -11.1), App.Rotation())
sketch7.addGeometry(Part.Circle(App.Vector(0, 0, 0), App.Vector(0, 0, 1), 2.5), False)
sketch7.addConstraint([
    Sketcher.Constraint("Coincident", 0, 3, -1, 1),
    Sketcher.Constraint("Diameter", 0, Q("5 mm")),
])
pad3 = body5.newObject("PartDesign::Pad", "Pad002")
pad3.Profile = sketch7
pad3.Length = 5
doc.recompute()

body6 = doc.addObject("PartDesign::Body", "Body005")
body6.BaseFeature = body5
boolean = body2.newObject("PartDesign::Boolean", "Boolean")
boolean.Type = "Cut"
boolean.addObjects([body6])
doc.recompute()

body7 = doc.addObject("PartDesign::Body", "Body006")
body7.BaseFeature = body5
boolean2 = body3.newObject("PartDesign::Boolean", "Boolean001")
boolean2.Type = "Cut"
boolean2.addObjects([body7])
doc.recompute()

boolean3 = body4.newObject("PartDesign::Boolean", "Boolean002")
boolean3.Type = "Cut"
boolean3.addObjects([body5])
body4.Visibility = False
mirroring.Visibility = False
mirroring2.Visibility = False

doc.recompute()
